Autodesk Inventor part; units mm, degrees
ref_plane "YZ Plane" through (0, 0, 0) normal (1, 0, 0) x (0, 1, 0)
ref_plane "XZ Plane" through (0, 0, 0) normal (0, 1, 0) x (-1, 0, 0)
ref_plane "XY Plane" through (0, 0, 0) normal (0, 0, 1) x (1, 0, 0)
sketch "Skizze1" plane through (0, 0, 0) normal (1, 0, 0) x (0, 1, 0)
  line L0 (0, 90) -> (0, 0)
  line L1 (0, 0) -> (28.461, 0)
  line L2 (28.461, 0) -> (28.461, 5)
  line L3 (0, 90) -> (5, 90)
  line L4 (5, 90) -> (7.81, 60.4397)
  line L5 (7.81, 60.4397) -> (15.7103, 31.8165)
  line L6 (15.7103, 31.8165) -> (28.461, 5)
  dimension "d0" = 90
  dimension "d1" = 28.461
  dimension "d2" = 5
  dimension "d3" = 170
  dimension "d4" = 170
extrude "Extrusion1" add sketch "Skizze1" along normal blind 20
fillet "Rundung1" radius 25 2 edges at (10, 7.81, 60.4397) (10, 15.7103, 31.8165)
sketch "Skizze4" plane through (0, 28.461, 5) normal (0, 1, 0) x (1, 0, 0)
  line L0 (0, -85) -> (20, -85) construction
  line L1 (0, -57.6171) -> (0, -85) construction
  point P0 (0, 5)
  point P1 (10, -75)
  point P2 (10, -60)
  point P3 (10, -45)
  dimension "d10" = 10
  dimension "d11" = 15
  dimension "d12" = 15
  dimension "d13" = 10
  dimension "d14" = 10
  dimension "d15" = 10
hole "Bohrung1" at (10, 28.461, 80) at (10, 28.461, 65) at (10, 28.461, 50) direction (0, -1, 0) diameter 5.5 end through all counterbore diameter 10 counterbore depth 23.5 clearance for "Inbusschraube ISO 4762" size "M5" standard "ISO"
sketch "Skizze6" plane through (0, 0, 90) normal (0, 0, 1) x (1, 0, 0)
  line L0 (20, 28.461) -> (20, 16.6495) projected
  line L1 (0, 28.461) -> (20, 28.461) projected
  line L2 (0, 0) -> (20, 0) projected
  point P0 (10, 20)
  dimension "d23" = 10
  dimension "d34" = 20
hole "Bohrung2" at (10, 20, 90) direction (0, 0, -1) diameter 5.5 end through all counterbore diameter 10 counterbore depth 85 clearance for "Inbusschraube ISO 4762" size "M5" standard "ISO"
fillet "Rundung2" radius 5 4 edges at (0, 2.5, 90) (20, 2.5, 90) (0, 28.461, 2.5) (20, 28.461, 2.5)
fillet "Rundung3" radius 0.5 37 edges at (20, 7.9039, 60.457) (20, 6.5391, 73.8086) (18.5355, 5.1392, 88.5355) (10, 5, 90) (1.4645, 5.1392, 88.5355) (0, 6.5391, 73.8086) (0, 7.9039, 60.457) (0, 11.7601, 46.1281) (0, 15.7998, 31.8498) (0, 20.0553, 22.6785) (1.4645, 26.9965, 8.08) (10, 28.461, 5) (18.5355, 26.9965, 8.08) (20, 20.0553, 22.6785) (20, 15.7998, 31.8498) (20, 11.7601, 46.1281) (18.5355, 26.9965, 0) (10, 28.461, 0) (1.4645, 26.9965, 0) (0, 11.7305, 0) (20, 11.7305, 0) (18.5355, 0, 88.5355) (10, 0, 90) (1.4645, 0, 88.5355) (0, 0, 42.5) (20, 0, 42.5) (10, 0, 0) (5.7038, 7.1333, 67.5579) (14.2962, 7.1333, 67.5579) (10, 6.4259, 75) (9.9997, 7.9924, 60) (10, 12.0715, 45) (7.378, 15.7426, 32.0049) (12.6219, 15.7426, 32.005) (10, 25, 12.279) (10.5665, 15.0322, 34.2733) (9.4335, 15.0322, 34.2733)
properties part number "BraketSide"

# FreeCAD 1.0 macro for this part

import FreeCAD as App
import Part
import Sketcher

V = App.Vector
Q = App.Units.Quantity


def edges_at(feature, points):
    """Names of the edges that pass closest to the given points."""
    edges = feature.Shape.Edges
    near = lambda p: min(range(len(edges)), key=lambda i: edges[i].distToShape(Part.Vertex(*p))[0])
    return sorted({f"Edge{near(p) + 1}" for p in points})

doc = App.newDocument("Part")
body = doc.addObject("PartDesign::Body", "Body")

sketch1 = doc.addObject("Sketcher::SketchObject", "Sketch")
body.addObject(sketch1)
sketch1.AttachmentSupport = (doc.YZ_Plane, [""])
sketch1.MapMode = "FlatFace"
sketch1.addGeometry(Part.LineSegment(V(5, 90, 0), V(0, 90, 0)), False)
sketch1.addGeometry(Part.LineSegment(V(0, 90, 0), V(0, 0, 0)), False)
sketch1.addGeometry(Part.LineSegment(V(0, 0, 0), V(28, 0, 0)), False)
sketch1.addGeometry(Part.LineSegment(V(28, 0, 0), V(28, 5, 0)), False)
sketch1.addGeometry(Part.LineSegment(V(28, 5, 0), V(16, 32, 0)), False)
sketch1.addGeometry(Part.LineSegment(V(16, 32, 0), V(8, 60, 0)), False)
sketch1.addGeometry(Part.LineSegment(V(8, 60, 0), V(5, 90, 0)), False)
sketch1.addConstraint(Sketcher.Constraint("Coincident", 0, 2, 1, 1))
sketch1.addConstraint(Sketcher.Constraint("Coincident", 1, 2, 2, 1))
sketch1.addConstraint(Sketcher.Constraint("Coincident", 2, 2, 3, 1))
sketch1.addConstraint(Sketcher.Constraint("Coincident", 3, 2, 4, 1))
sketch1.addConstraint(Sketcher.Constraint("Coincident", 4, 2, 5, 1))
sketch1.addConstraint(Sketcher.Constraint("Coincident", 5, 2, 6, 1))
sketch1.addConstraint(Sketcher.Constraint("Coincident", 6, 2, 0, 1))
sketch1.addConstraint(Sketcher.Constraint("Horizontal", 0))
sketch1.addConstraint(Sketcher.Constraint("Vertical", 1))
sketch1.addConstraint(Sketcher.Constraint("Horizontal", 2))
sketch1.addConstraint(Sketcher.Constraint("Vertical", 3))
sketch1.addConstraint(Sketcher.Constraint("Coincident", 1, 2, -1, 1))
sketch1.addConstraint(Sketcher.Constraint("Equal", 0, 3))
sketch1.addConstraint(Sketcher.Constraint("Equal", 4, 5))
sketch1.addConstraint(Sketcher.Constraint("Equal", 5, 6))
sketch1.addConstraint(Sketcher.Constraint("DistanceX", 0, 2, 0, 1, 5.0))
sketch1.addConstraint(Sketcher.Constraint("DistanceY", 1, 2, 1, 1, 90.0))
sketch1.addConstraint(Sketcher.Constraint("DistanceX", 2, 1, 2, 2, 28.461))
sketch1.addConstraint(Sketcher.Constraint("Angle", 4, Q("115.4301 deg")))
sketch1.addConstraint(Sketcher.Constraint("Angle", 5, Q("105.43 deg")))
pad1 = doc.addObject("PartDesign::Pad", "Pad")
body.addObject(pad1)
pad1.Profile = sketch1
pad1.Length = 20
doc.recompute()

fillet = doc.addObject("PartDesign::Fillet", "Fillet")
body.addObject(fillet)
fillet.Base = (pad1, edges_at(pad1, [(10, 7.81, 60.44), (10, 15.71, 31.817)]))
fillet.Radius = 25

sketch2 = doc.addObject("Sketcher::SketchObject", "Sketch001")
body.addObject(sketch2)
sketch2.AttachmentSupport = (doc.XZ_Plane, [""])
sketch2.MapMode = "FlatFace"
sketch2.AttachmentOffset = App.Placement(V(0, 0, -28.461), App.Rotation())
sketch2.addGeometry(Part.Circle(V(10, 80, 0), V(0, 0, 1), 2.8), False)
sketch2.addGeometry(Part.Circle(V(10, 65, 0), V(0, 0, 1), 2.8), False)
sketch2.addGeometry(Part.Circle(V(10, 50, 0), V(0, 0, 1), 2.8), False)
sketch2.addConstraint(Sketcher.Constraint("Equal", 0, 1))
sketch2.addConstraint(Sketcher.Constraint("Equal", 1, 2))
sketch2.addConstraint(Sketcher.Constraint("Vertical", 0, 3, 1, 3))
sketch2.addConstraint(Sketcher.Constraint("Vertical", 1, 3, 2, 3))
sketch2.addConstraint(Sketcher.Constraint("Diameter", 0, 5.5))
sketch2.addConstraint(Sketcher.Constraint("DistanceX", -1, 1, 0, 3, 10.0))
sketch2.addConstraint(Sketcher.Constraint("DistanceY", -1, 1, 0, 3, 80.0))
sketch2.addConstraint(Sketcher.Constraint("DistanceY", -1, 1, 1, 3, 65.0))
sketch2.addConstraint(Sketcher.Constraint("DistanceY", -1, 1, 2, 3, 50.0))
doc.recompute()
hole = doc.addObject("PartDesign::Hole", "Hole")
body.addObject(hole)
hole.Profile = sketch2
hole.ThreadType = "None"
hole.Diameter = 5.5
hole.DepthType = "ThroughAll"
hole.HoleCutType = "Counterbore"
hole.HoleCutDiameter = 10
hole.HoleCutDepth = 23.5
hole.Reversed = True

sketch3 = doc.addObject("Sketcher::SketchObject", "Sketch002")
body.addObject(sketch3)
sketch3.AttachmentSupport = (doc.XY_Plane, [""])
sketch3.MapMode = "FlatFace"
sketch3.AttachmentOffset = App.Placement(V(0, 0, 90), App.Rotation())
sketch3.addGeometry(Part.Circle(V(10, 20, 0), V(0, 0, 1), 2.8), False)
sketch3.addConstraint(Sketcher.Constraint("Diameter", 0, 5.5))
sketch3.addConstraint(Sketcher.Constraint("DistanceX", -1, 1, 0, 3, 10.0))
sketch3.addConstraint(Sketcher.Constraint("DistanceY", -1, 1, 0, 3, 20.0))
doc.recompute()
hole2 = doc.addObject("PartDesign::Hole", "Hole001")
body.addObject(hole2)
hole2.Profile = sketch3
hole2.ThreadType = "None"
hole2.Diameter = 5.5
hole2.DepthType = "ThroughAll"
hole2.HoleCutType = "Counterbore"
hole2.HoleCutDiameter = 10
hole2.HoleCutDepth = 85
doc.recompute()

fillet2 = doc.addObject("PartDesign::Fillet", "Fillet001")
body.addObject(fillet2)
fillet2.Base = (hole2, edges_at(hole2, [
    (0, 2.5, 90),
    (20, 2.5, 90),
    (0, 28.461, 2.5),
    (20, 28.461, 2.5),
]))
fillet2.Radius = 5
doc.recompute()

fillet3 = doc.addObject("PartDesign::Fillet", "Fillet002")
body.addObject(fillet3)
fillet3.Base = (fillet2, edges_at(fillet2, [
    (20, 7.904, 60.457),
    (20, 6.539, 73.809),
    (18.535, 5.139, 88.535),
    (10, 5, 90),
    (1.464, 5.139, 88.535),
    (0, 6.539, 73.809),
    (0, 7.904, 60.457),
    (0, 11.76, 46.128),
    (0, 15.8, 31.85),
    (0, 20.055, 22.678),
    (1.464, 26.997, 8.08),
    (10, 28.461, 5),
    (18.535, 26.997, 8.08),
    (20, 20.055, 22.678),
    (20, 15.8, 31.85),
    (20, 11.76, 46.128),
    (18.535, 26.997, 0),
    (10, 28.461, 0),
    (1.464, 26.997, 0),
    (0, 11.73, 0),
    (20, 11.73, 0),
    (18.535, 0, 88.535),
    (10, 0, 90),
    (1.464, 0, 88.535),
    (0, 0, 42.5),
    (20, 0, 42.5),
    (10, 0, 0),
    (5.704, 7.133, 67.558),
    (14.296, 7.133, 67.558),
    (10, 6.426, 75),
    (10, 7.992, 60),
    (10, 12.072, 45),
    (7.378, 15.743, 32.005),
    (12.622, 15.743, 32.005),
    (10, 25, 12.279),
    (10.566, 15.032, 34.273),
    (9.434, 15.032, 34.273),
]))
fillet3.Radius = 0.5

doc.recompute()
